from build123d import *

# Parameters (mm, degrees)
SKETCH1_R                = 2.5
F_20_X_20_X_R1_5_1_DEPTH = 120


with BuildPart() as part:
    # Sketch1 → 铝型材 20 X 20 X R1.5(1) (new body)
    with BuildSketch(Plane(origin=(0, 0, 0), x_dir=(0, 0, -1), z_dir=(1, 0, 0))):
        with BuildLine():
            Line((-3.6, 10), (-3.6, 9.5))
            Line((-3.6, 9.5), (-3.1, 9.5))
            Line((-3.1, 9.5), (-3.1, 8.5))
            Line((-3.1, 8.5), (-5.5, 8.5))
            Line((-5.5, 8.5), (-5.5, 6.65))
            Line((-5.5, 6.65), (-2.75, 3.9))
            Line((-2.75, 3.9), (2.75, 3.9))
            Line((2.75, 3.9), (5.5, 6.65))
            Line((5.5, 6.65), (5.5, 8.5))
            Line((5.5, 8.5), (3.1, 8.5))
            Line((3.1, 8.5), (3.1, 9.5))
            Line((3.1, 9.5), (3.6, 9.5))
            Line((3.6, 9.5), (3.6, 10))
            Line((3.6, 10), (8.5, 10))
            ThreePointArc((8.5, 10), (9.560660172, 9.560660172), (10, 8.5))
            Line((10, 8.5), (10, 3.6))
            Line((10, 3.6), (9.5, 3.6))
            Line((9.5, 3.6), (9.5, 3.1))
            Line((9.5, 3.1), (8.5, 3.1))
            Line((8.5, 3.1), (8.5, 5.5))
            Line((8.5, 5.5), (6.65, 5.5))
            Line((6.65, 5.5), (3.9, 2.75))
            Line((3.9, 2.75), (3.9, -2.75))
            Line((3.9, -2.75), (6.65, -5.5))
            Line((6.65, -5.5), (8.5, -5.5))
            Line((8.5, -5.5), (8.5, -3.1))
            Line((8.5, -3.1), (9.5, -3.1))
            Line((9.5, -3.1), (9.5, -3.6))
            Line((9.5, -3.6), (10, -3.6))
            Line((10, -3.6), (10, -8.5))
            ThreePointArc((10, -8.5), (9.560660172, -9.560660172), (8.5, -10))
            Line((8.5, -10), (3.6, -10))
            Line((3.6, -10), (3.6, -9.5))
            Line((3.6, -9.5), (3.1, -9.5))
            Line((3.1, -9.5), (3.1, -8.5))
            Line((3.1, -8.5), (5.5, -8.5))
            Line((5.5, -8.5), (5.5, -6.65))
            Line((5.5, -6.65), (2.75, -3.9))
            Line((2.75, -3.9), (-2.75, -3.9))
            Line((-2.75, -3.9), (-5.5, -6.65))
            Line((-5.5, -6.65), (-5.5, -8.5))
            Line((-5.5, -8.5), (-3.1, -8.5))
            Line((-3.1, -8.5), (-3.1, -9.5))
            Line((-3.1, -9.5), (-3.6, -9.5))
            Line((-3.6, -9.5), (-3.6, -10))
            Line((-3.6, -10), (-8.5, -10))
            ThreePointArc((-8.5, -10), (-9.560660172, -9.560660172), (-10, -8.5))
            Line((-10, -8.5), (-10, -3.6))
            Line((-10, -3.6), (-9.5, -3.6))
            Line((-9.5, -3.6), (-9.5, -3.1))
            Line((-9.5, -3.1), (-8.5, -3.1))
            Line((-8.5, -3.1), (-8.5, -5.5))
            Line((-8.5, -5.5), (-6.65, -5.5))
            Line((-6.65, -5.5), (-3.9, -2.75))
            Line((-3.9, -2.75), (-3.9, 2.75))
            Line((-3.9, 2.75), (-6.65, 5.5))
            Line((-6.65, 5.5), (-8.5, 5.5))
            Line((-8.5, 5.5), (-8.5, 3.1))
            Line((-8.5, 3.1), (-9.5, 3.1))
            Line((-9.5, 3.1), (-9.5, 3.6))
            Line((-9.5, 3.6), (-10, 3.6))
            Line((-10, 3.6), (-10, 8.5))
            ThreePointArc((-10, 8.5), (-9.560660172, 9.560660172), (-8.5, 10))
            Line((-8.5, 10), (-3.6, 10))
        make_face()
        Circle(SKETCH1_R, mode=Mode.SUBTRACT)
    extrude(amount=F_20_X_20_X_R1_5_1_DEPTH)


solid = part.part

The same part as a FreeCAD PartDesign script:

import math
import FreeCAD as App
import Part
import Sketcher

doc = App.newDocument("Part")
params = doc.addObject("Spreadsheet::Sheet", "Params")
for row, (alias, value) in enumerate([
    ("sketch1_diameter", "5 mm"),
    ("sketch1_radius", "1.5 mm"),
    ("sketch1_width", "1 mm"),
    ("sketch1_width2", "4.9 mm"),
    ("sketch1_width3", "2.4 mm"),
    ("pad1_length", "120 mm"),
], start=1):
    params.set(f"A{row}", alias)
    params.set(f"B{row}", "=" + value)
    params.setAlias(f"B{row}", alias)

body = doc.addObject("PartDesign::Body", "Body")

sketch1 = body.newObject("Sketcher::SketchObject", "Sketch")
sketch1.AttachmentSupport = (doc.getObject("YZ_Plane"), [""])
sketch1.MapMode = "FlatFace"
sketch1.addGeometry([
    Part.LineSegment(App.Vector(9.5, 3.6, 0), App.Vector(10, 3.6, 0)),
    Part.LineSegment(App.Vector(10, 3.6, 0), App.Vector(10, 8.5, 0)),
    Part.ArcOfCircle(Part.Circle(App.Vector(8.5, 8.5, 0), App.Vector(0, 0, 1), 1.5), math.radians(0), math.radians(90)),
    Part.LineSegment(App.Vector(8.5, 10, 0), App.Vector(3.6, 10, 0)),
    Part.LineSegment(App.Vector(3.6, 10, 0), App.Vector(3.6, 9.5, 0)),
    Part.LineSegment(App.Vector(3.6, 9.5, 0), App.Vector(3.1, 9.5, 0)),
    Part.LineSegment(App.Vector(3.1, 9.5, 0), App.Vector(3.1, 8.5, 0)),
    Part.LineSegment(App.Vector(3.1, 8.5, 0), App.Vector(5.5, 8.5, 0)),
    Part.LineSegment(App.Vector(5.5, 8.5, 0), App.Vector(5.5, 6.7, 0)),
    Part.LineSegment(App.Vector(5.5, 6.7, 0), App.Vector(2.8, 3.9, 0)),
    Part.LineSegment(App.Vector(2.8, 3.9, 0), App.Vector(-2.8, 3.9, 0)),
    Part.LineSegment(App.Vector(-2.8, 3.9, 0), App.Vector(-5.5, 6.7, 0)),
    Part.LineSegment(App.Vector(-5.5, 6.7, 0), App.Vector(-5.5, 8.5, 0)),
    Part.LineSegment(App.Vector(-5.5, 8.5, 0), App.Vector(-3.1, 8.5, 0)),
    Part.LineSegment(App.Vector(-3.1, 8.5, 0), App.Vector(-3.1, 9.5, 0)),
    Part.LineSegment(App.Vector(-3.1, 9.5, 0), App.Vector(-3.6, 9.5, 0)),
    Part.LineSegment(App.Vector(-3.6, 9.5, 0), App.Vector(-3.6, 10, 0)),
    Part.LineSegment(App.Vector(-3.6, 10, 0), App.Vector(-8.5, 10, 0)),
    Part.ArcOfCircle(Part.Circle(App.Vector(-8.5, 8.5, 0), App.Vector(0, 0, 1), 1.5), math.radians(90), math.radians(180)),
    Part.LineSegment(App.Vector(-10, 8.5, 0), App.Vector(-10, 3.6, 0)),
    Part.LineSegment(App.Vector(-10, 3.6, 0), App.Vector(-9.5, 3.6, 0)),
    Part.LineSegment(App.Vector(-9.5, 3.6, 0), App.Vector(-9.5, 3.1, 0)),
    Part.LineSegment(App.Vector(-9.5, 3.1, 0), App.Vector(-8.5, 3.1, 0)),
    Part.LineSegment(App.Vector(-8.5, 3.1, 0), App.Vector(-8.5, 5.5, 0)),
    Part.LineSegment(App.Vector(-8.5, 5.5, 0), App.Vector(-6.7, 5.5, 0)),
    Part.LineSegment(App.Vector(-6.7, 5.5, 0), App.Vector(-3.9, 2.8, 0)),
    Part.LineSegment(App.Vector(-3.9, 2.8, 0), App.Vector(-3.9, -2.8, 0)),
    Part.LineSegment(App.Vector(-3.9, -2.8, 0), App.Vector(-6.7, -5.5, 0)),
    Part.LineSegment(App.Vector(-6.7, -5.5, 0), App.Vector(-8.5, -5.5, 0)),
    Part.LineSegment(App.Vector(-8.5, -5.5, 0), App.Vector(-8.5, -3.1, 0)),
    Part.LineSegment(App.Vector(-8.5, -3.1, 0), App.Vector(-9.5, -3.1, 0)),
    Part.LineSegment(App.Vector(-9.5, -3.1, 0), App.Vector(-9.5, -3.6, 0)),
    Part.LineSegment(App.Vector(-9.5, -3.6, 0), App.Vector(-10, -3.6, 0)),
    Part.LineSegment(App.Vector(-10, -3.6, 0), App.Vector(-10, -8.5, 0)),
    Part.ArcOfCircle(Part.Circle(App.Vector(-8.5, -8.5, 0), App.Vector(0, 0, 1), 1.5), math.radians(180), math.radians(270)),
    Part.LineSegment(App.Vector(-8.5, -10, 0), App.Vector(-3.6, -10, 0)),
    Part.LineSegment(App.Vector(-3.6, -10, 0), App.Vector(-3.6, -9.5, 0)),
    Part.LineSegment(App.Vector(-3.6, -9.5, 0), App.Vector(-3.1, -9.5, 0)),
    Part.LineSegment(App.Vector(-3.1, -9.5, 0), App.Vector(-3.1, -8.5, 0)),
    Part.LineSegment(App.Vector(-3.1, -8.5, 0), App.Vector(-5.5, -8.5, 0)),
    Part.LineSegment(App.Vector(-5.5, -8.5, 0), App.Vector(-5.5, -6.7, 0)),
    Part.LineSegment(App.Vector(-5.5, -6.7, 0), App.Vector(-2.8, -3.9, 0)),
    Part.LineSegment(App.Vector(-2.8, -3.9, 0), App.Vector(2.8, -3.9, 0)),
    Part.LineSegment(App.Vector(2.8, -3.9, 0), App.Vector(5.5, -6.7, 0)),
    Part.LineSegment(App.Vector(5.5, -6.7, 0), App.Vector(5.5, -8.5, 0)),
    Part.LineSegment(App.Vector(5.5, -8.5, 0), App.Vector(3.1, -8.5, 0)),
    Part.LineSegment(App.Vector(3.1, -8.5, 0), App.Vector(3.1, -9.5, 0)),
    Part.LineSegment(App.Vector(3.1, -9.5, 0), App.Vector(3.6, -9.5, 0)),
    Part.LineSegment(App.Vector(3.6, -9.5, 0), App.Vector(3.6, -10, 0)),
    Part.LineSegment(App.Vector(3.6, -10, 0), App.Vector(8.5, -10, 0)),
    Part.ArcOfCircle(Part.Circle(App.Vector(8.5, -8.5, 0), App.Vector(0, 0, 1), 1.5), math.radians(-90), math.radians(0)),
    Part.LineSegment(App.Vector(10, -8.5, 0), App.Vector(10, -3.6, 0)),
    Part.LineSegment(App.Vector(10, -3.6, 0), App.Vector(9.5, -3.6, 0)),
    Part.LineSegment(App.Vector(9.5, -3.6, 0), App.Vector(9.5, -3.1, 0)),
    Part.LineSegment(App.Vector(9.5, -3.1, 0), App.Vector(8.5, -3.1, 0)),
    Part.LineSegment(App.Vector(8.5, -3.1, 0), App.Vector(8.5, -5.5, 0)),
    Part.LineSegment(App.Vector(8.5, -5.5, 0), App.Vector(6.7, -5.5, 0)),
    Part.LineSegment(App.Vector(6.7, -5.5, 0), App.Vector(3.9, -2.8, 0)),
    Part.LineSegment(App.Vector(3.9, -2.8, 0), App.Vector(3.9, 2.8, 0)),
    Part.LineSegment(App.Vector(3.9, 2.8, 0), App.Vector(6.7, 5.5, 0)),
    Part.LineSegment(App.Vector(6.7, 5.5, 0), App.Vector(8.5, 5.5, 0)),
    Part.LineSegment(App.Vector(8.5, 5.5, 0), App.Vector(8.5, 3.1, 0)),
    Part.LineSegment(App.Vector(8.5, 3.1, 0), App.Vector(9.5, 3.1, 0)),
    Part.LineSegment(App.Vector(9.5, 3.1, 0), App.Vector(9.5, 3.6, 0)),
    Part.Circle(App.Vector(0, 0, 0), App.Vector(0, 0, 1), 2.5),
], False)
sketch1.addConstraint([
    Sketcher.Constraint("Coincident", 0, 2, 1, 1),
    Sketcher.Constraint("Tangent", 1, 2, 2, 1),
    Sketcher.Constraint("Tangent", 2, 2, 3, 1),
    Sketcher.Constraint("Coincident", 3, 2, 4, 1),
    Sketcher.Constraint("Coincident", 4, 2, 5, 1),
    Sketcher.Constraint("Coincident", 5, 2, 6, 1),
    Sketcher.Constraint("Coincident", 6, 2, 7, 1),
    Sketcher.Constraint("Coincident", 7, 2, 8, 1),
    Sketcher.Constraint("Coincident", 8, 2, 9, 1),
    Sketcher.Constraint("Coincident", 9, 2, 10, 1),
    Sketcher.Constraint("Coincident", 10, 2, 11, 1),
    Sketcher.Constraint("Coincident", 11, 2, 12, 1),
    Sketcher.Constraint("Coincident", 12, 2, 13, 1),
    Sketcher.Constraint("Coincident", 13, 2, 14, 1),
    Sketcher.Constraint("Coincident", 14, 2, 15, 1),
    Sketcher.Constraint("Coincident", 15, 2, 16, 1),
    Sketcher.Constraint("Coincident", 16, 2, 17, 1),
    Sketcher.Constraint("Tangent", 17, 2, 18, 1),
    Sketcher.Constraint("Tangent", 18, 2, 19, 1),
    Sketcher.Constraint("Coincident", 19, 2, 20, 1),
    Sketcher.Constraint("Coincident", 20, 2, 21, 1),
    Sketcher.Constraint("Coincident", 21, 2, 22, 1),
    Sketcher.Constraint("Coincident", 22, 2, 23, 1),
    Sketcher.Constraint("Coincident", 23, 2, 24, 1),
    Sketcher.Constraint("Coincident", 24, 2, 25, 1),
    Sketcher.Constraint("Coincident", 25, 2, 26, 1),
    Sketcher.Constraint("Coincident", 26, 2, 27, 1),
    Sketcher.Constraint("Coincident", 27, 2, 28, 1),
    Sketcher.Constraint("Coincident", 28, 2, 29, 1),
    Sketcher.Constraint("Coincident", 29, 2, 30, 1),
    Sketcher.Constraint("Coincident", 30, 2, 31, 1),
    Sketcher.Constraint("Coincident", 31, 2, 32, 1),
    Sketcher.Constraint("Coincident", 32, 2, 33, 1),
    Sketcher.Constraint("Tangent", 33, 2, 34, 1),
    Sketcher.Constraint("Tangent", 34, 2, 35, 1),
    Sketcher.Constraint("Coincident", 35, 2, 36, 1),
    Sketcher.Constraint("Coincident", 36, 2, 37, 1),
    Sketcher.Constraint("Coincident", 37, 2, 38, 1),
    Sketcher.Constraint("Coincident", 38, 2, 39, 1),
    Sketcher.Constraint("Coincident", 39, 2, 40, 1),
    Sketcher.Constraint("Coincident", 40, 2, 41, 1),
    Sketcher.Constraint("Coincident", 41, 2, 42, 1),
    Sketcher.Constraint("Coincident", 42, 2, 43, 1),
    Sketcher.Constraint("Coincident", 43, 2, 44, 1),
    Sketcher.Constraint("Coincident", 44, 2, 45, 1),
    Sketcher.Constraint("Coincident", 45, 2, 46, 1),
    Sketcher.Constraint("Coincident", 46, 2, 47, 1),
    Sketcher.Constraint("Coincident", 47, 2, 48, 1),
    Sketcher.Constraint("Coincident", 48, 2, 49, 1),
    Sketcher.Constraint("Tangent", 49, 2, 50, 1),
    Sketcher.Constraint("Tangent", 50, 2, 51, 1),
    Sketcher.Constraint("Coincident", 51, 2, 52, 1),
    Sketcher.Constraint("Coincident", 52, 2, 53, 1),
    Sketcher.Constraint("Coincident", 53, 2, 54, 1),
    Sketcher.Constraint("Coincident", 54, 2, 55, 1),
    Sketcher.Constraint("Coincident", 55, 2, 56, 1),
    Sketcher.Constraint("Coincident", 56, 2, 57, 1),
    Sketcher.Constraint("Coincident", 57, 2, 58, 1),
    Sketcher.Constraint("Coincident", 58, 2, 59, 1),
    Sketcher.Constraint("Coincident", 59, 2, 60, 1),
    Sketcher.Constraint("Coincident", 60, 2, 61, 1),
    Sketcher.Constraint("Coincident", 61, 2, 62, 1),
    Sketcher.Constraint("Coincident", 62, 2, 63, 1),
    Sketcher.Constraint("Coincident", 63, 2, 0, 1),
    Sketcher.Constraint("Horizontal", 0),
    Sketcher.Constraint("Vertical", 1),
    Sketcher.Constraint("Horizontal", 3),
    Sketcher.Constraint("Vertical", 4),
    Sketcher.Constraint("Horizontal", 5),
    Sketcher.Constraint("Vertical", 6),
    Sketcher.Constraint("Horizontal", 7),
    Sketcher.Constraint("Vertical", 8),
    Sketcher.Constraint("Horizontal", 10),
    Sketcher.Constraint("Vertical", 12),
    Sketcher.Constraint("Horizontal", 13),
    Sketcher.Constraint("Vertical", 14),
    Sketcher.Constraint("Horizontal", 15),
    Sketcher.Constraint("Vertical", 16),
    Sketcher.Constraint("Horizontal", 17),
    Sketcher.Constraint("Vertical", 19),
    Sketcher.Constraint("Horizontal", 20),
    Sketcher.Constraint("Vertical", 21),
    Sketcher.Constraint("Horizontal", 22),
    Sketcher.Constraint("Vertical", 23),
    Sketcher.Constraint("Horizontal", 24),
    Sketcher.Constraint("Vertical", 26),
    Sketcher.Constraint("Horizontal", 28),
    Sketcher.Constraint("Vertical", 29),
    Sketcher.Constraint("Horizontal", 30),
    Sketcher.Constraint("Vertical", 31),
    Sketcher.Constraint("Horizontal", 32),
    Sketcher.Constraint("Vertical", 33),
    Sketcher.Constraint("Horizontal", 35),
    Sketcher.Constraint("Vertical", 36),
    Sketcher.Constraint("Horizontal", 37),
    Sketcher.Constraint("Vertical", 38),
    Sketcher.Constraint("Horizontal", 39),
    Sketcher.Constraint("Vertical", 40),
    Sketcher.Constraint("Horizontal", 42),
    Sketcher.Constraint("Vertical", 44),
    Sketcher.Constraint("Horizontal", 45),
    Sketcher.Constraint("Vertical", 46),
    Sketcher.Constraint("Horizontal", 47),
    Sketcher.Constraint("Vertical", 48),
    Sketcher.Constraint("Horizontal", 49),
    Sketcher.Constraint("Vertical", 51),
    Sketcher.Constraint("Horizontal", 52),
    Sketcher.Constraint("Vertical", 53),
    Sketcher.Constraint("Horizontal", 54),
    Sketcher.Constraint("Vertical", 55),
    Sketcher.Constraint("Horizontal", 56),
    Sketcher.Constraint("Vertical", 58),
    Sketcher.Constraint("Horizontal", 60),
    Sketcher.Constraint("Vertical", 61),
    Sketcher.Constraint("Horizontal", 62),
    Sketcher.Constraint("Vertical", 63),
    Sketcher.Constraint("Coincident", 64, 3, -1, 1),
    Sketcher.Constraint("Equal", 2, 18),
    Sketcher.Constraint("Equal", 18, 34),
    Sketcher.Constraint("Equal", 34, 50),
    Sketcher.Constraint("Symmetric", 2, 3, 34, 3, -1, 1),
    Sketcher.Constraint("Symmetric", 18, 3, 50, 3, -1, 1),
    Sketcher.Constraint("Symmetric", 4, 2, 36, 2, -1, 1),
    Sketcher.Constraint("Symmetric", 6, 2, 38, 2, -1, 1),
    Sketcher.Constraint("Symmetric", 8, 2, 40, 2, -1, 1),
    Sketcher.Constraint("Symmetric", 9, 2, 41, 2, -1, 1),
    Sketcher.Constraint("Symmetric", 11, 2, 43, 2, -1, 1),
    Sketcher.Constraint("Symmetric", 13, 2, 45, 2, -1, 1),
    Sketcher.Constraint("Symmetric", 15, 2, 47, 2, -1, 1),
    Sketcher.Constraint("Symmetric", 20, 2, 52, 2, -1, 1),
    Sketcher.Constraint("Symmetric", 22, 2, 54, 2, -1, 1),
    Sketcher.Constraint("Symmetric", 24, 2, 56, 2, -1, 1),
    Sketcher.Constraint("Symmetric", 25, 2, 57, 2, -1, 1),
    Sketcher.Constraint("Symmetric", 27, 2, 59, 2, -1, 1),
    Sketcher.Constraint("Symmetric", 29, 2, 61, 2, -1, 1),
    Sketcher.Constraint("Symmetric", 31, 2, 63, 2, -1, 1),
    Sketcher.Constraint("Symmetric", 2, 3, 18, 3, -2),
    Sketcher.Constraint("Symmetric", 8, 2, 11, 2, -2),
    Sketcher.Constraint("Symmetric", 6, 2, 13, 2, -2),
    Sketcher.Constraint("Symmetric", 4, 2, 15, 2, -2),
    Sketcher.Constraint("Symmetric", 31, 2, 52, 2, -2),
    Sketcher.Constraint("Symmetric", 29, 2, 54, 2, -2),
    Sketcher.Constraint("Symmetric", 27, 2, 56, 2, -2),
    Sketcher.Constraint("Perpendicular", 9, 11),
    Sketcher.Constraint("Parallel", 11, 25),
    Sketcher.Constraint("Perpendicular", 25, 27),
    Sketcher.Constraint("Perpendicular", 41, 43),
    Sketcher.Constraint("Perpendicular", 57, 59),
    Sketcher.Constraint("Horizontal", 1, 2, 6, 2),
    Sketcher.Constraint("Horizontal", 26, 2, 57, 2),
    Sketcher.Constraint("Vertical", 17, 2, 22, 2),
    Sketcher.Constraint("Equal", 0, 5),
    Sketcher.Constraint("Equal", 49, 1),
    Sketcher.Constraint("Equal", 52, 4),
    Sketcher.Constraint("Equal", 60, 8),
    Sketcher.Constraint("Equal", 16, 21),
    Sketcher.Constraint("Equal", 45, 23),
    Sketcher.Constraint("Equal", 42, 26),
    Sketcher.Constraint("Equal", 11, 25),
    Sketcher.Constraint("Diameter", 64, 5.0),
    Sketcher.Constraint("Radius", 2, 1.5),
    Sketcher.Constraint("DistanceX", 22, 1, 22, 2, 1.0),
    Sketcher.Constraint("DistanceX", 3, 2, 3, 1, 4.9),
    Sketcher.Constraint("DistanceX", 7, 1, 7, 2, 2.4),
    Sketcher.Constraint("DistanceX", 10, 2, 10, 1, 5.5),
    Sketcher.Constraint("DistanceX", -1, 1, 0, 2, 10.0),
    Sketcher.Constraint("DistanceX", 24, 1, 24, 2, 1.85),
])
sketch1.setExpression("Constraints[159]", "Params.sketch1_diameter")
sketch1.setExpression("Constraints[160]", "Params.sketch1_radius")
sketch1.setExpression("Constraints[161]", "Params.sketch1_width")
sketch1.setExpression("Constraints[162]", "Params.sketch1_width2")
sketch1.setExpression("Constraints[163]", "Params.sketch1_width3")
pad1 = body.newObject("PartDesign::Pad", "Pad")
pad1.Profile = sketch1
pad1.setExpression("Length", "Params.pad1_length")

doc.recompute()
